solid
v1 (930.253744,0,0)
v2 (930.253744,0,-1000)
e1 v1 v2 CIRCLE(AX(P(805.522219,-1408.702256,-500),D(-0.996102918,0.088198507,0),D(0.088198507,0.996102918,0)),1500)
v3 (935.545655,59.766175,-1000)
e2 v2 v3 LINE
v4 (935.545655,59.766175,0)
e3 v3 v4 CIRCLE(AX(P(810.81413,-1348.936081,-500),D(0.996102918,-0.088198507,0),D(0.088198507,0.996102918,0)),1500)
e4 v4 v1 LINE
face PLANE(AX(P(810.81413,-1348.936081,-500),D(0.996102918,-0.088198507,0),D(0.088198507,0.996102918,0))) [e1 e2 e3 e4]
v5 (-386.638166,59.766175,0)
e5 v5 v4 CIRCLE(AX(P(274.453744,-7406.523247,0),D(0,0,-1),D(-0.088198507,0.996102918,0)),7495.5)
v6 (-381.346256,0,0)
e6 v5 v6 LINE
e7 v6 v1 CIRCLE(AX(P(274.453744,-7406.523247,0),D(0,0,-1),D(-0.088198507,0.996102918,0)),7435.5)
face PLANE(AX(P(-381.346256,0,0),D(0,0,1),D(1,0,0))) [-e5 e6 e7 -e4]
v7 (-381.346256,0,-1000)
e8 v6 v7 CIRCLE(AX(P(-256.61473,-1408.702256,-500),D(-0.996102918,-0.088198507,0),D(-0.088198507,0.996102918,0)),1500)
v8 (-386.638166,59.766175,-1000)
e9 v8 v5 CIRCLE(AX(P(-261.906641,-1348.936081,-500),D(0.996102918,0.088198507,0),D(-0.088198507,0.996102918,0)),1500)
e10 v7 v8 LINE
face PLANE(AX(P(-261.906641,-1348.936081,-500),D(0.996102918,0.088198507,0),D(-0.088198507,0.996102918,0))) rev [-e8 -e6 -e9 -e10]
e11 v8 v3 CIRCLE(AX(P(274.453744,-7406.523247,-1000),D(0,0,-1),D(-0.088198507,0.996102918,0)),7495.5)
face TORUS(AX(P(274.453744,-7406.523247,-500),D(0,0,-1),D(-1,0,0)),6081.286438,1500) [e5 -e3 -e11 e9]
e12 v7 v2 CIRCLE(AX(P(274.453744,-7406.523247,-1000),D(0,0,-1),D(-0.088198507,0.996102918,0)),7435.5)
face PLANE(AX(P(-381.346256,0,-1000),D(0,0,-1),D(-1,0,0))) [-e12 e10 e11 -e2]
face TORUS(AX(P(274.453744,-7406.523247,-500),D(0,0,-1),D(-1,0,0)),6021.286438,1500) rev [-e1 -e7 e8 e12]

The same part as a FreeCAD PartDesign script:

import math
import FreeCAD as App
import Part
import Sketcher

doc = App.newDocument("Part")
body = doc.addObject("PartDesign::Body", "Body")

# Sketch on an angled plane
sketch1 = body.newObject("Sketcher::SketchObject", "Sketch")
sketch1.Placement = App.Placement(App.Vector(-381.346256, 0, 0), App.Rotation(App.Vector(0, 0, -1), App.Vector(-0.088198507, 0.996102918, 0), App.Vector(0.996102918, 0.088198507, 0), "ZXY"))
sketch1.addGeometry([
    Part.LineSegment(App.Vector(1000, 0, 0), App.Vector(1000, 60, 0)),
    Part.ArcOfCircle(Part.Circle(App.Vector(500, -1354.213562, 0), App.Vector(0, 0, 1), 1500), math.radians(70.528779), math.radians(109.471221)),
    Part.LineSegment(App.Vector(0, 60, 0), App.Vector(0, 0, 0)),
    Part.ArcOfCircle(Part.Circle(App.Vector(500, -1414.213562, 0), App.Vector(0, 0, 1), 1500), math.radians(70.528779), math.radians(109.471221)),
], False)
sketch1.addConstraint([
    Sketcher.Constraint("Coincident", 0, 2, 1, 1),
    Sketcher.Constraint("Coincident", 1, 2, 2, 1),
    Sketcher.Constraint("Coincident", 2, 2, 3, 2),
    Sketcher.Constraint("Coincident", 3, 1, 0, 1),
    Sketcher.Constraint("Vertical", 0),
    Sketcher.Constraint("Vertical", 2),
    Sketcher.Constraint("Coincident", 2, 2, -1, 1),
    Sketcher.Constraint("Equal", 1, 3),
    Sketcher.Constraint("Vertical", 1, 3, 3, 3),
    Sketcher.Constraint("Radius", 1, 1500.0),
    Sketcher.Constraint("DistanceY", 0, 1, 0, 2, 60.0),
    Sketcher.Constraint("DistanceX", -1, 1, 1, 3, 500.0),
    Sketcher.Constraint("DistanceX", -1, 1, 0, 2, 1000.0),
])

# Sketch on XY plane
sketch2 = body.newObject("Sketcher::SketchObject", "Sketch001")
sketch2.AttachmentSupport = (doc.getObject("XY_Plane"), [""])
sketch2.MapMode = "FlatFace"
sketch2.addGeometry(Part.ArcOfCircle(Part.Circle(App.Vector(274.453744, -7406.523247, 0), App.Vector(0, 0, 1), 7435.5), math.radians(84.940023), math.radians(95.059977)), False)
sketch2.addConstraint([
    Sketcher.Constraint("PointOnObject", 0, 1, -1),
    Sketcher.Constraint("PointOnObject", 0, 2, -1),
    Sketcher.Constraint("Radius", 0, 7435.5),
    Sketcher.Constraint("DistanceX", 0, 2, 0, 1, 1311.6),
    Sketcher.Constraint("DistanceX", -1, 1, 0, 3, 274.453744),
])
doc.recompute()

additivepipe = body.newObject("PartDesign::AdditivePipe", "AdditivePipe")
additivepipe.Profile = sketch1
additivepipe.Spine = (sketch2, ["Edge1"])

doc.recompute()
